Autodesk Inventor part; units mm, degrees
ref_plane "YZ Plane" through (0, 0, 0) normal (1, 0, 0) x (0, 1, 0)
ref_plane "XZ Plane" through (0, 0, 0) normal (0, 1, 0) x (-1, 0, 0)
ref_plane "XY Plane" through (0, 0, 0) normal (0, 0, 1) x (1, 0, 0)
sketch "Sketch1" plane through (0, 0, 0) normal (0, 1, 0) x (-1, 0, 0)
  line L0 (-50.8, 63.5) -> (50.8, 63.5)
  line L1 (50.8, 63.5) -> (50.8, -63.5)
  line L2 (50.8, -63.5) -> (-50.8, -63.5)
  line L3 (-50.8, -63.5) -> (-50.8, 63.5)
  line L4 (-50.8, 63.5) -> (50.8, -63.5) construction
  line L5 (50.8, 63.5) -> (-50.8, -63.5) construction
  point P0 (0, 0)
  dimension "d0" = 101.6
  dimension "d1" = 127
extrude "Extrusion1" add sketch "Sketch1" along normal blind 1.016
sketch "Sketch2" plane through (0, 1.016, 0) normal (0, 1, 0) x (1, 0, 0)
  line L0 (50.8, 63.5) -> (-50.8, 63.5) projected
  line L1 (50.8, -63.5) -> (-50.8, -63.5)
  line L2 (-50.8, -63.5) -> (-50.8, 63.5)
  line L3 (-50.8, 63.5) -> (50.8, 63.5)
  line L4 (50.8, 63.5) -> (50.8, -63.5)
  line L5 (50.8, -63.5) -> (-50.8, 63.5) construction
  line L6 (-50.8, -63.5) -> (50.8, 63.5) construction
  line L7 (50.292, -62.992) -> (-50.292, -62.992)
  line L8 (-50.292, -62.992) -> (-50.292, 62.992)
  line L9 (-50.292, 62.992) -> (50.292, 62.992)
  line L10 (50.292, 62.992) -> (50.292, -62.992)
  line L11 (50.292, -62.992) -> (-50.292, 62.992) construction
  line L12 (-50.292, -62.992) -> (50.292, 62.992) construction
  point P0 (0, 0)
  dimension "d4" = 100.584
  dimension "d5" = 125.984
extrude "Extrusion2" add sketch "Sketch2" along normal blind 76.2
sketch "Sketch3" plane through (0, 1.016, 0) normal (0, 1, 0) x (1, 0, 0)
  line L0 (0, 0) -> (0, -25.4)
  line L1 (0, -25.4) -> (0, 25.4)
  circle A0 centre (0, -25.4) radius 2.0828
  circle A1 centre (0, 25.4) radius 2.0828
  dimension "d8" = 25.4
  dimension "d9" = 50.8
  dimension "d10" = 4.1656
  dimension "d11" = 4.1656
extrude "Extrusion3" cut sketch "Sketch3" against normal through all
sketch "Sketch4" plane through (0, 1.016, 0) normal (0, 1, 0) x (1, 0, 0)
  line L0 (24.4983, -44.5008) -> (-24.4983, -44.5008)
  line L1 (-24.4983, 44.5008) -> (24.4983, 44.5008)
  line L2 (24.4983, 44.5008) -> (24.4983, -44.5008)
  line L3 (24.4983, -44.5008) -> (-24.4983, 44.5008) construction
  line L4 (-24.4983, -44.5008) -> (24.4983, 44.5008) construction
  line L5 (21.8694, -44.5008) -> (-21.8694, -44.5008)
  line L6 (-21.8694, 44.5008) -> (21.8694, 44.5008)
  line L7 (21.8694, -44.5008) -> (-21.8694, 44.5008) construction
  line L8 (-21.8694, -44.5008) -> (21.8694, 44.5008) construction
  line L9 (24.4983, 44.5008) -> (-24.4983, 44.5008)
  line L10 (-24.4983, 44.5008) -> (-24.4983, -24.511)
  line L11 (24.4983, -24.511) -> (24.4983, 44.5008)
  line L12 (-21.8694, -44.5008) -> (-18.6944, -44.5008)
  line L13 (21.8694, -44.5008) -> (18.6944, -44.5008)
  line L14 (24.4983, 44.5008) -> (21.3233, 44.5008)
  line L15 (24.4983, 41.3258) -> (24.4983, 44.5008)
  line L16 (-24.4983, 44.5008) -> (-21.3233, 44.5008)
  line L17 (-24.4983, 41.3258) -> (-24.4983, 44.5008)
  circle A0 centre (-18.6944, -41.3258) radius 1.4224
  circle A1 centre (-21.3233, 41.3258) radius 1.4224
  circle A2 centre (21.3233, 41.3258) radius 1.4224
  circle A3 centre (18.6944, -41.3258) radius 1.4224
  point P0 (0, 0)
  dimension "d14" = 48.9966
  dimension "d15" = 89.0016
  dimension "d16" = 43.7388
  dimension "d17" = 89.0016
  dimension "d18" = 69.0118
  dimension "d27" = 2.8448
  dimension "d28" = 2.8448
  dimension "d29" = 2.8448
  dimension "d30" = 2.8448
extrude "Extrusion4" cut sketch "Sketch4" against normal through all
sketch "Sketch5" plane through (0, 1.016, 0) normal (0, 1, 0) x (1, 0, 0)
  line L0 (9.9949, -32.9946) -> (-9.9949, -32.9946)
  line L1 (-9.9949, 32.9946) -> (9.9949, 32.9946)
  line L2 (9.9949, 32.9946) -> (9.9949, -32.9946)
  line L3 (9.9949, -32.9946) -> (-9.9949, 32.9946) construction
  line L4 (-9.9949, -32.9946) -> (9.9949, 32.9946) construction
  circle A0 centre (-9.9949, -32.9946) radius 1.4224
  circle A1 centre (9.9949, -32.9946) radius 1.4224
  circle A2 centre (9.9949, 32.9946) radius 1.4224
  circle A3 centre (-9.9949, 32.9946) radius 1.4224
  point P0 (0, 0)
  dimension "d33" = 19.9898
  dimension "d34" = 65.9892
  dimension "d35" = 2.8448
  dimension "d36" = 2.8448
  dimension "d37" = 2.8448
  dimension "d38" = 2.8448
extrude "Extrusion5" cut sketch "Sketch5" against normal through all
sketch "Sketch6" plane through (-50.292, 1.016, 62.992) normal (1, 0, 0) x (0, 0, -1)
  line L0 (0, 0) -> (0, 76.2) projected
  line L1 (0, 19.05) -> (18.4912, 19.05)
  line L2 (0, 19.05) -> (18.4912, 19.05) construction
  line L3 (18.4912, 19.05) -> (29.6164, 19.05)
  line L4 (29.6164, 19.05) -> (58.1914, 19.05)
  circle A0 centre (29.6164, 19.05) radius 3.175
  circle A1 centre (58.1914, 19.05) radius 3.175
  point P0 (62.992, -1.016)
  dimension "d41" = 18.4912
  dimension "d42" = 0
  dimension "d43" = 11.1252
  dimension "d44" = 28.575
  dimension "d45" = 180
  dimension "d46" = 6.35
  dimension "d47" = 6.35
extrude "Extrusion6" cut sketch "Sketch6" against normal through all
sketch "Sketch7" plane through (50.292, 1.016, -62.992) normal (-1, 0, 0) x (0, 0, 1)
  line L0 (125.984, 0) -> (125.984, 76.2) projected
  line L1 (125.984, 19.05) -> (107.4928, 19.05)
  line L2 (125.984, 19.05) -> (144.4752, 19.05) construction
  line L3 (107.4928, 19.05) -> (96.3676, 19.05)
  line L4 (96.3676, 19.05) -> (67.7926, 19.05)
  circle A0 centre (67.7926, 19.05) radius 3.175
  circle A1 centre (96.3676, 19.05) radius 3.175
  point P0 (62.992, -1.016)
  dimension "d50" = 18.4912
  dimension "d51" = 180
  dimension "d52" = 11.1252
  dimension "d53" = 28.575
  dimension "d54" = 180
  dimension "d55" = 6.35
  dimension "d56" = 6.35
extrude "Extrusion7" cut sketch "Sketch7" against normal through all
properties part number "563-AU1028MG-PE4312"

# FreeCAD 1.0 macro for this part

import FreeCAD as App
import Part
import Sketcher
Q = App.Units.Quantity

doc = App.newDocument("Part")
body = doc.addObject("PartDesign::Body", "Body")

# Sketch on XZ plane
sketch1 = body.newObject("Sketcher::SketchObject", "Sketch")
sketch1.AttachmentSupport = (doc.getObject("XZ_Plane"), [""])
sketch1.MapMode = "FlatFace"
sketch1.addGeometry([
    Part.LineSegment(App.Vector(-50.8, 63.5, 0), App.Vector(50.8, 63.5, 0)),
    Part.LineSegment(App.Vector(50.8, 63.5, 0), App.Vector(50.8, -63.5, 0)),
    Part.LineSegment(App.Vector(50.8, -63.5, 0), App.Vector(-50.8, -63.5, 0)),
    Part.LineSegment(App.Vector(-50.8, -63.5, 0), App.Vector(-50.8, 63.5, 0)),
], False)
sketch1.addConstraint([
    Sketcher.Constraint("Coincident", 0, 2, 1, 1),
    Sketcher.Constraint("Coincident", 1, 2, 2, 1),
    Sketcher.Constraint("Coincident", 2, 2, 3, 1),
    Sketcher.Constraint("Coincident", 3, 2, 0, 1),
    Sketcher.Constraint("Horizontal", 0),
    Sketcher.Constraint("Vertical", 1),
    Sketcher.Constraint("Horizontal", 2),
    Sketcher.Constraint("Vertical", 3),
    Sketcher.Constraint("Symmetric", 0, 2, 2, 2, -1, 1),
    Sketcher.Constraint("DistanceX", 0, 1, 0, 2, Q("4 in")),
    Sketcher.Constraint("DistanceY", 1, 2, 1, 1, Q("5 in")),
])
pad1 = body.newObject("PartDesign::Pad", "Pad")
pad1.Profile = sketch1
pad1.Length = Q("0.04 in")
pad1.Reversed = True

# Sketch on XZ plane
sketch2 = body.newObject("Sketcher::SketchObject", "Sketch001")
sketch2.AttachmentSupport = (doc.getObject("XZ_Plane"), [""])
sketch2.MapMode = "FlatFace"
sketch2.AttachmentOffset = App.Placement(App.Vector(0, 0, -0.04 * 25.4), App.Rotation())
sketch2.addGeometry([
    Part.LineSegment(App.Vector(50.8, 63.5, 0), App.Vector(50.8, -63.5, 0)),  # 0
    Part.LineSegment(App.Vector(50.8, -63.5, 0), App.Vector(-50.8, -63.5, 0)),  # 1
    Part.LineSegment(App.Vector(-50.8, -63.5, 0), App.Vector(-50.8, 63.5, 0)),  # 2
    Part.LineSegment(App.Vector(-50.8, 63.5, 0), App.Vector(50.8, 63.5, 0)),  # 3
    Part.LineSegment(App.Vector(50.292, -62.992, 0), App.Vector(50.292, 62.992, 0)),  # 4
    Part.LineSegment(App.Vector(50.292, 62.992, 0), App.Vector(-50.292, 62.992, 0)),  # 5
    Part.LineSegment(App.Vector(-50.292, 62.992, 0), App.Vector(-50.292, -62.992, 0)),  # 6
    Part.LineSegment(App.Vector(-50.292, -62.992, 0), App.Vector(50.292, -62.992, 0)),  # 7
], False)
sketch2.addConstraint([
    Sketcher.Constraint("Coincident", 0, 2, 1, 1),
    Sketcher.Constraint("Coincident", 1, 2, 2, 1),
    Sketcher.Constraint("Coincident", 2, 2, 3, 1),
    Sketcher.Constraint("Coincident", 3, 2, 0, 1),
    Sketcher.Constraint("Coincident", 4, 2, 5, 1),
    Sketcher.Constraint("Coincident", 5, 2, 6, 1),
    Sketcher.Constraint("Coincident", 6, 2, 7, 1),
    Sketcher.Constraint("Coincident", 7, 2, 4, 1),
    Sketcher.Constraint("Vertical", 0),
    Sketcher.Constraint("Horizontal", 1),
    Sketcher.Constraint("Vertical", 2),
    Sketcher.Constraint("Horizontal", 3),
    Sketcher.Constraint("Vertical", 4),
    Sketcher.Constraint("Horizontal", 5),
    Sketcher.Constraint("Vertical", 6),
    Sketcher.Constraint("Horizontal", 7),
    Sketcher.Constraint("Symmetric", 0, 2, 2, 2, -1, 1),
    Sketcher.Constraint("Symmetric", 4, 2, 6, 2, -1, 1),
    Sketcher.Constraint("DistanceX", 5, 2, 5, 1, Q("3.96 in")),
    Sketcher.Constraint("DistanceY", 4, 1, 4, 2, Q("4.96 in")),
    Sketcher.Constraint("DistanceX", 1, 2, 1, 1, Q("4 in")),
    Sketcher.Constraint("DistanceY", 0, 2, 0, 1, Q("5 in")),
])
pad2 = body.newObject("PartDesign::Pad", "Pad001")
pad2.Profile = sketch2
pad2.Length = Q("3 in")
pad2.Reversed = True

# Sketch on XZ plane
sketch3 = body.newObject("Sketcher::SketchObject", "Sketch002")
sketch3.AttachmentSupport = (doc.getObject("XZ_Plane"), [""])
sketch3.MapMode = "FlatFace"
sketch3.AttachmentOffset = App.Placement(App.Vector(0, 0, -0.04 * 25.4), App.Rotation())
sketch3.addGeometry([
    Part.Circle(App.Vector(0, 25.4, 0), App.Vector(0, 0, 1), 2.0828),
    Part.Circle(App.Vector(0, -25.4, 0), App.Vector(0, 0, 1), 2.0828),
], False)
sketch3.addConstraint([
    Sketcher.Constraint("Equal", 0, 1),
    Sketcher.Constraint("Symmetric", 0, 3, 1, 3, -1, 1),
    Sketcher.Constraint("PointOnObject", 0, 3, -2),
    Sketcher.Constraint("Diameter", 0, Q("0.164 in")),
    Sketcher.Constraint("DistanceY", -1, 1, 0, 3, Q("1 in")),
])
pocket1 = body.newObject("PartDesign::Pocket", "Pocket")
pocket1.Profile = sketch3
pocket1.Type = "ThroughAll"
pocket1.Reversed = True

# Sketch on XZ plane
sketch4 = body.newObject("Sketcher::SketchObject", "Sketch003")
sketch4.AttachmentSupport = (doc.getObject("XZ_Plane"), [""])
sketch4.MapMode = "FlatFace"
sketch4.AttachmentOffset = App.Placement(App.Vector(0, 0, -0.04 * 25.4), App.Rotation())
sketch4.addGeometry([
    Part.Circle(App.Vector(-18.6944, 41.3258, 0), App.Vector(0, 0, 1), 1.4224),
    Part.Circle(App.Vector(-21.3233, -41.3258, 0), App.Vector(0, 0, 1), 1.4224),
    Part.Circle(App.Vector(21.3233, -41.3258, 0), App.Vector(0, 0, 1), 1.4224),
    Part.Circle(App.Vector(18.6944, 41.3258, 0), App.Vector(0, 0, 1), 1.4224),
], False)
sketch4.addConstraint([
    Sketcher.Constraint("Equal", 0, 1),
    Sketcher.Constraint("Equal", 1, 2),
    Sketcher.Constraint("Equal", 2, 3),
    Sketcher.Constraint("Symmetric", 1, 3, 2, 3, -2),
    Sketcher.Constraint("Symmetric", 0, 3, 3, 3, -2),
    Sketcher.Constraint("Diameter", 0, Q("0.112 in")),
    Sketcher.Constraint("DistanceX", 0, 3, -1, 1, Q("0.736 in")),
    Sketcher.Constraint("DistanceY", -1, 1, 0, 3, Q("1.627 in")),
    Sketcher.Constraint("DistanceY", 1, 3, -1, 1, Q("1.627 in")),
    Sketcher.Constraint("DistanceX", 1, 3, 2, 3, Q("1.679 in")),
])
pocket2 = body.newObject("PartDesign::Pocket", "Pocket001")
pocket2.Profile = sketch4
pocket2.Type = "ThroughAll"
pocket2.Reversed = True

# Sketch on XZ plane
sketch5 = body.newObject("Sketcher::SketchObject", "Sketch004")
sketch5.AttachmentSupport = (doc.getObject("XZ_Plane"), [""])
sketch5.MapMode = "FlatFace"
sketch5.AttachmentOffset = App.Placement(App.Vector(0, 0, -0.04 * 25.4), App.Rotation())
sketch5.addGeometry([
    Part.Circle(App.Vector(9.9949, 32.9946, 0), App.Vector(0, 0, 1), 1.4224),
    Part.Circle(App.Vector(-9.9949, 32.9946, 0), App.Vector(0, 0, 1), 1.4224),
    Part.Circle(App.Vector(-9.9949, -32.9946, 0), App.Vector(0, 0, 1), 1.4224),
    Part.Circle(App.Vector(9.9949, -32.9946, 0), App.Vector(0, 0, 1), 1.4224),
], False)
sketch5.addConstraint([
    Sketcher.Constraint("Equal", 0, 1),
    Sketcher.Constraint("Equal", 1, 2),
    Sketcher.Constraint("Equal", 2, 3),
    Sketcher.Constraint("Symmetric", 0, 3, 2, 3, -1, 1),
    Sketcher.Constraint("Symmetric", 1, 3, 3, 3, -1, 1),
    Sketcher.Constraint("Symmetric", 0, 3, 1, 3, -2),
    Sketcher.Constraint("Diameter", 0, Q("0.112 in")),
    Sketcher.Constraint("DistanceX", 1, 3, 0, 3, Q("0.787 in")),
    Sketcher.Constraint("DistanceY", 2, 3, 1, 3, Q("2.598 in")),
])
pocket3 = body.newObject("PartDesign::Pocket", "Pocket002")
pocket3.Profile = sketch5
pocket3.Type = "ThroughAll"
pocket3.Reversed = True

# Sketch on YZ plane
sketch6 = body.newObject("Sketcher::SketchObject", "Sketch005")
sketch6.AttachmentSupport = (doc.getObject("YZ_Plane"), [""])
sketch6.MapMode = "FlatFace"
sketch6.AttachmentOffset = App.Placement(App.Vector(0, 0, -1.98 * 25.4), App.Rotation())
sketch6.addGeometry([
    Part.Circle(App.Vector(20.066, 33.3756, 0), App.Vector(0, 0, 1), 3.175),
    Part.Circle(App.Vector(20.066, 4.8006, 0), App.Vector(0, 0, 1), 3.175),
], False)
sketch6.addConstraint([
    Sketcher.Constraint("Equal", 0, 1),
    Sketcher.Constraint("Vertical", 0, 3, 1, 3),
    Sketcher.Constraint("Diameter", 0, Q("0.25 in")),
    Sketcher.Constraint("DistanceY", 1, 3, 0, 3, Q("1.125 in")),
    Sketcher.Constraint("DistanceX", -1, 1, 0, 3, Q("0.79 in")),
    Sketcher.Constraint("DistanceY", -1, 1, 0, 3, Q("1.314 in")),
])
pocket4 = body.newObject("PartDesign::Pocket", "Pocket003")
pocket4.Profile = sketch6
pocket4.Type = "ThroughAll"

# Sketch on YZ plane
sketch7 = body.newObject("Sketcher::SketchObject", "Sketch006")
sketch7.AttachmentSupport = (doc.getObject("YZ_Plane"), [""])
sketch7.MapMode = "FlatFace"
sketch7.AttachmentOffset = App.Placement(App.Vector(0, 0, 1.98 * 25.4), App.Rotation())
sketch7.addGeometry([
    Part.Circle(App.Vector(20.066, 33.3756, 0), App.Vector(0, 0, 1), 3.175),
    Part.Circle(App.Vector(20.066, 4.8006, 0), App.Vector(0, 0, 1), 3.175),
], False)
sketch7.addConstraint([
    Sketcher.Constraint("Equal", 0, 1),
    Sketcher.Constraint("Vertical", 0, 3, 1, 3),
    Sketcher.Constraint("Diameter", 0, Q("0.25 in")),
    Sketcher.Constraint("DistanceY", 1, 3, 0, 3, Q("1.125 in")),
    Sketcher.Constraint("DistanceX", -1, 1, 0, 3, Q("0.79 in")),
    Sketcher.Constraint("DistanceY", -1, 1, 0, 3, Q("1.314 in")),
])
pocket5 = body.newObject("PartDesign::Pocket", "Pocket004")
pocket5.Profile = sketch7
pocket5.Type = "ThroughAll"
pocket5.Reversed = True

doc.recompute()
